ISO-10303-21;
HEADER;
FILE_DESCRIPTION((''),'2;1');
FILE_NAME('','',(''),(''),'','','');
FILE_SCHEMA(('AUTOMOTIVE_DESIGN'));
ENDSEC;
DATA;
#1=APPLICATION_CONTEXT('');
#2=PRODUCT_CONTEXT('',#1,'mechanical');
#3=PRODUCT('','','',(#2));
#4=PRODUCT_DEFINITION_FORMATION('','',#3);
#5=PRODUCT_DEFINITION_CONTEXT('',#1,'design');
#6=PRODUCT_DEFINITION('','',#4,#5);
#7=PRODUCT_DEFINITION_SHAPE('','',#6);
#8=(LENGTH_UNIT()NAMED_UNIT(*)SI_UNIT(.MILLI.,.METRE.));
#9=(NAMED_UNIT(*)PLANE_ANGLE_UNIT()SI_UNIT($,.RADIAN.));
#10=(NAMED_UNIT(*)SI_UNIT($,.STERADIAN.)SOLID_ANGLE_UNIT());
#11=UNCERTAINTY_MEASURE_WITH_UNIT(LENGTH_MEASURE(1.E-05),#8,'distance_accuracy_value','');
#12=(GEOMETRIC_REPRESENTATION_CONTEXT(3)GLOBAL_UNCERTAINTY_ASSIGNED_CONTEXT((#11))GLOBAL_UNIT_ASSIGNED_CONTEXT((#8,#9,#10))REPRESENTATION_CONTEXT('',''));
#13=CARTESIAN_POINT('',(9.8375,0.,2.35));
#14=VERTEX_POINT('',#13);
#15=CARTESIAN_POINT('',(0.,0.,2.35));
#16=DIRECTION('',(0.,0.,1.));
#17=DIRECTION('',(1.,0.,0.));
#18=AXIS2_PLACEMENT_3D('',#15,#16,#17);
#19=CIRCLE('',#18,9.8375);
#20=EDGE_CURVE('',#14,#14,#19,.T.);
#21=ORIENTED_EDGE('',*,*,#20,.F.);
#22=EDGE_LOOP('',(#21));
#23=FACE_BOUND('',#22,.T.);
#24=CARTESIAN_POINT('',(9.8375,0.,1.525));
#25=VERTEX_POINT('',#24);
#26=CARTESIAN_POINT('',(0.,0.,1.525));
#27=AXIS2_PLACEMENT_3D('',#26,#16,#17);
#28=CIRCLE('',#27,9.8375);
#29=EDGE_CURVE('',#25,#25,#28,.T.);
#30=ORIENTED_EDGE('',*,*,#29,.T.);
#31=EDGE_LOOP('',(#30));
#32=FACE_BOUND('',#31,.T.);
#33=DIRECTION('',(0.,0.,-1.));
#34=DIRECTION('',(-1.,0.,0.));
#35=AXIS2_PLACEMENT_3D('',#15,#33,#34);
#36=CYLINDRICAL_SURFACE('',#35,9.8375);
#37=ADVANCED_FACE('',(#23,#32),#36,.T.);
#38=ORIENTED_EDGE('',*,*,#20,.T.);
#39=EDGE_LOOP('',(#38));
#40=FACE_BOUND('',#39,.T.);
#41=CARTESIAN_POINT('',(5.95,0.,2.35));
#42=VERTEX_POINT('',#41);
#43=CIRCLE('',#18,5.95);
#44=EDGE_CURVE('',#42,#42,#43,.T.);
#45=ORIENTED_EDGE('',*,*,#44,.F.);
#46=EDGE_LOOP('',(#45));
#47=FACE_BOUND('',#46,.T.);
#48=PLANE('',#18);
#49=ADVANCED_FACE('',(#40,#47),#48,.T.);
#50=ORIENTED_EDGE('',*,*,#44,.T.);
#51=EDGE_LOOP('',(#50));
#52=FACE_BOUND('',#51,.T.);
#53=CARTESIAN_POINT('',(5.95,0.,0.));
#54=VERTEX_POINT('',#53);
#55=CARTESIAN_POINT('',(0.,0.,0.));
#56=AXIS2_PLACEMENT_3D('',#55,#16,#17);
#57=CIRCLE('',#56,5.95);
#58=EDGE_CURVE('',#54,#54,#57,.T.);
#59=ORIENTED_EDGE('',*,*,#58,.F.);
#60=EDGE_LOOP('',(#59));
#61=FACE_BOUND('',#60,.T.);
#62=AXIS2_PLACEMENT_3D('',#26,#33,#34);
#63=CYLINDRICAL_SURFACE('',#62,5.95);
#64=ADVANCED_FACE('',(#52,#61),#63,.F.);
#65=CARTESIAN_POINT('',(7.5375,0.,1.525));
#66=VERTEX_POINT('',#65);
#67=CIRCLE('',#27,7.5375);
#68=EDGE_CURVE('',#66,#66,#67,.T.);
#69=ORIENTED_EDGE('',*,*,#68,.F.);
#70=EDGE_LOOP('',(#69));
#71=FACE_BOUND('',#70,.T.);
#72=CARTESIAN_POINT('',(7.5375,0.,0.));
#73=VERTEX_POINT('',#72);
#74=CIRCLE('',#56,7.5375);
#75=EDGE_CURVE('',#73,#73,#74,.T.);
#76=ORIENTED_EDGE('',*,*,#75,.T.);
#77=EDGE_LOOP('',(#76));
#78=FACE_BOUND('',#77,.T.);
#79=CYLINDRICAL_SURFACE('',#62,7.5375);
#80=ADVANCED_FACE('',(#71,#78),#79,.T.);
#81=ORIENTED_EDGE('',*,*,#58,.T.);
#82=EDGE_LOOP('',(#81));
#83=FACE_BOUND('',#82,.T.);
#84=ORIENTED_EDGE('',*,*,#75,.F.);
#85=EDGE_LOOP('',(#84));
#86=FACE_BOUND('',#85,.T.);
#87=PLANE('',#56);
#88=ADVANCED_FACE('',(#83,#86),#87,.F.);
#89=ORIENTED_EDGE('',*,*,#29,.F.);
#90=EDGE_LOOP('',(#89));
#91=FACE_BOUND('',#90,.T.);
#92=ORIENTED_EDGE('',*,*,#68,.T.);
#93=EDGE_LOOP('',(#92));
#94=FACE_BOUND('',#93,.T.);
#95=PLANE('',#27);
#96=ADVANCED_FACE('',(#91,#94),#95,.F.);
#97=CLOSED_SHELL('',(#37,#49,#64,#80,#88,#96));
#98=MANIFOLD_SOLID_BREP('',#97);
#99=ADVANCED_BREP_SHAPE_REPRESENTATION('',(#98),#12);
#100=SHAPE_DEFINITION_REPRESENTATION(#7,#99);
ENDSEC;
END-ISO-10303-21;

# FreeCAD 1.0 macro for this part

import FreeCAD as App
import Part
import Sketcher
from FreeCAD import Vector

doc = App.newDocument("Part")
body = doc.addObject("PartDesign::Body", "Body")

# Sketch on XY plane
sketch1 = doc.addObject("Sketcher::SketchObject", "Sketch")
body.addObject(sketch1)
sketch1.AttachmentSupport = (doc.XY_Plane, [""])
sketch1.MapMode = "FlatFace"
sketch1.addGeometry(Part.Circle(Vector(0, 0, 0), Vector(0, 0, 1), 8), False)
sketch1.addGeometry(Part.Circle(Vector(0, 0, 0), Vector(0, 0, 1), 6), False)
sketch1.addConstraint(Sketcher.Constraint("Coincident", 0, 3, -1, 1))
sketch1.addConstraint(Sketcher.Constraint("Coincident", 1, 3, -1, 1))
sketch1.addConstraint(Sketcher.Constraint("Diameter", 1, 11.9))
sketch1.addConstraint(Sketcher.Constraint("Diameter", 0, 15.075))
pad1 = doc.addObject("PartDesign::Pad", "Pad")
body.addObject(pad1)
pad1.Profile = sketch1
pad1.Length = 1.525

# Sketch on XY plane
sketch2 = doc.addObject("Sketcher::SketchObject", "Sketch001")
body.addObject(sketch2)
sketch2.AttachmentSupport = (doc.XY_Plane, [""])
sketch2.MapMode = "FlatFace"
sketch2.AttachmentOffset = App.Placement(Vector(0, 0, 1.525), App.Rotation())
sketch2.addGeometry(Part.Circle(Vector(0, 0, 0), Vector(0, 0, 1), 10), False)
sketch2.addGeometry(Part.Circle(Vector(0, 0, 0), Vector(0, 0, 1), 6), False)
sketch2.addConstraint(Sketcher.Constraint("Coincident", 0, 3, -1, 1))
sketch2.addConstraint(Sketcher.Constraint("Coincident", 1, 3, -1, 1))
sketch2.addConstraint(Sketcher.Constraint("Diameter", 1, 11.9))
sketch2.addConstraint(Sketcher.Constraint("Diameter", 0, 19.675))
pad2 = doc.addObject("PartDesign::Pad", "Pad001")
body.addObject(pad2)
pad2.Profile = sketch2
pad2.Length = 0.825

doc.recompute()
